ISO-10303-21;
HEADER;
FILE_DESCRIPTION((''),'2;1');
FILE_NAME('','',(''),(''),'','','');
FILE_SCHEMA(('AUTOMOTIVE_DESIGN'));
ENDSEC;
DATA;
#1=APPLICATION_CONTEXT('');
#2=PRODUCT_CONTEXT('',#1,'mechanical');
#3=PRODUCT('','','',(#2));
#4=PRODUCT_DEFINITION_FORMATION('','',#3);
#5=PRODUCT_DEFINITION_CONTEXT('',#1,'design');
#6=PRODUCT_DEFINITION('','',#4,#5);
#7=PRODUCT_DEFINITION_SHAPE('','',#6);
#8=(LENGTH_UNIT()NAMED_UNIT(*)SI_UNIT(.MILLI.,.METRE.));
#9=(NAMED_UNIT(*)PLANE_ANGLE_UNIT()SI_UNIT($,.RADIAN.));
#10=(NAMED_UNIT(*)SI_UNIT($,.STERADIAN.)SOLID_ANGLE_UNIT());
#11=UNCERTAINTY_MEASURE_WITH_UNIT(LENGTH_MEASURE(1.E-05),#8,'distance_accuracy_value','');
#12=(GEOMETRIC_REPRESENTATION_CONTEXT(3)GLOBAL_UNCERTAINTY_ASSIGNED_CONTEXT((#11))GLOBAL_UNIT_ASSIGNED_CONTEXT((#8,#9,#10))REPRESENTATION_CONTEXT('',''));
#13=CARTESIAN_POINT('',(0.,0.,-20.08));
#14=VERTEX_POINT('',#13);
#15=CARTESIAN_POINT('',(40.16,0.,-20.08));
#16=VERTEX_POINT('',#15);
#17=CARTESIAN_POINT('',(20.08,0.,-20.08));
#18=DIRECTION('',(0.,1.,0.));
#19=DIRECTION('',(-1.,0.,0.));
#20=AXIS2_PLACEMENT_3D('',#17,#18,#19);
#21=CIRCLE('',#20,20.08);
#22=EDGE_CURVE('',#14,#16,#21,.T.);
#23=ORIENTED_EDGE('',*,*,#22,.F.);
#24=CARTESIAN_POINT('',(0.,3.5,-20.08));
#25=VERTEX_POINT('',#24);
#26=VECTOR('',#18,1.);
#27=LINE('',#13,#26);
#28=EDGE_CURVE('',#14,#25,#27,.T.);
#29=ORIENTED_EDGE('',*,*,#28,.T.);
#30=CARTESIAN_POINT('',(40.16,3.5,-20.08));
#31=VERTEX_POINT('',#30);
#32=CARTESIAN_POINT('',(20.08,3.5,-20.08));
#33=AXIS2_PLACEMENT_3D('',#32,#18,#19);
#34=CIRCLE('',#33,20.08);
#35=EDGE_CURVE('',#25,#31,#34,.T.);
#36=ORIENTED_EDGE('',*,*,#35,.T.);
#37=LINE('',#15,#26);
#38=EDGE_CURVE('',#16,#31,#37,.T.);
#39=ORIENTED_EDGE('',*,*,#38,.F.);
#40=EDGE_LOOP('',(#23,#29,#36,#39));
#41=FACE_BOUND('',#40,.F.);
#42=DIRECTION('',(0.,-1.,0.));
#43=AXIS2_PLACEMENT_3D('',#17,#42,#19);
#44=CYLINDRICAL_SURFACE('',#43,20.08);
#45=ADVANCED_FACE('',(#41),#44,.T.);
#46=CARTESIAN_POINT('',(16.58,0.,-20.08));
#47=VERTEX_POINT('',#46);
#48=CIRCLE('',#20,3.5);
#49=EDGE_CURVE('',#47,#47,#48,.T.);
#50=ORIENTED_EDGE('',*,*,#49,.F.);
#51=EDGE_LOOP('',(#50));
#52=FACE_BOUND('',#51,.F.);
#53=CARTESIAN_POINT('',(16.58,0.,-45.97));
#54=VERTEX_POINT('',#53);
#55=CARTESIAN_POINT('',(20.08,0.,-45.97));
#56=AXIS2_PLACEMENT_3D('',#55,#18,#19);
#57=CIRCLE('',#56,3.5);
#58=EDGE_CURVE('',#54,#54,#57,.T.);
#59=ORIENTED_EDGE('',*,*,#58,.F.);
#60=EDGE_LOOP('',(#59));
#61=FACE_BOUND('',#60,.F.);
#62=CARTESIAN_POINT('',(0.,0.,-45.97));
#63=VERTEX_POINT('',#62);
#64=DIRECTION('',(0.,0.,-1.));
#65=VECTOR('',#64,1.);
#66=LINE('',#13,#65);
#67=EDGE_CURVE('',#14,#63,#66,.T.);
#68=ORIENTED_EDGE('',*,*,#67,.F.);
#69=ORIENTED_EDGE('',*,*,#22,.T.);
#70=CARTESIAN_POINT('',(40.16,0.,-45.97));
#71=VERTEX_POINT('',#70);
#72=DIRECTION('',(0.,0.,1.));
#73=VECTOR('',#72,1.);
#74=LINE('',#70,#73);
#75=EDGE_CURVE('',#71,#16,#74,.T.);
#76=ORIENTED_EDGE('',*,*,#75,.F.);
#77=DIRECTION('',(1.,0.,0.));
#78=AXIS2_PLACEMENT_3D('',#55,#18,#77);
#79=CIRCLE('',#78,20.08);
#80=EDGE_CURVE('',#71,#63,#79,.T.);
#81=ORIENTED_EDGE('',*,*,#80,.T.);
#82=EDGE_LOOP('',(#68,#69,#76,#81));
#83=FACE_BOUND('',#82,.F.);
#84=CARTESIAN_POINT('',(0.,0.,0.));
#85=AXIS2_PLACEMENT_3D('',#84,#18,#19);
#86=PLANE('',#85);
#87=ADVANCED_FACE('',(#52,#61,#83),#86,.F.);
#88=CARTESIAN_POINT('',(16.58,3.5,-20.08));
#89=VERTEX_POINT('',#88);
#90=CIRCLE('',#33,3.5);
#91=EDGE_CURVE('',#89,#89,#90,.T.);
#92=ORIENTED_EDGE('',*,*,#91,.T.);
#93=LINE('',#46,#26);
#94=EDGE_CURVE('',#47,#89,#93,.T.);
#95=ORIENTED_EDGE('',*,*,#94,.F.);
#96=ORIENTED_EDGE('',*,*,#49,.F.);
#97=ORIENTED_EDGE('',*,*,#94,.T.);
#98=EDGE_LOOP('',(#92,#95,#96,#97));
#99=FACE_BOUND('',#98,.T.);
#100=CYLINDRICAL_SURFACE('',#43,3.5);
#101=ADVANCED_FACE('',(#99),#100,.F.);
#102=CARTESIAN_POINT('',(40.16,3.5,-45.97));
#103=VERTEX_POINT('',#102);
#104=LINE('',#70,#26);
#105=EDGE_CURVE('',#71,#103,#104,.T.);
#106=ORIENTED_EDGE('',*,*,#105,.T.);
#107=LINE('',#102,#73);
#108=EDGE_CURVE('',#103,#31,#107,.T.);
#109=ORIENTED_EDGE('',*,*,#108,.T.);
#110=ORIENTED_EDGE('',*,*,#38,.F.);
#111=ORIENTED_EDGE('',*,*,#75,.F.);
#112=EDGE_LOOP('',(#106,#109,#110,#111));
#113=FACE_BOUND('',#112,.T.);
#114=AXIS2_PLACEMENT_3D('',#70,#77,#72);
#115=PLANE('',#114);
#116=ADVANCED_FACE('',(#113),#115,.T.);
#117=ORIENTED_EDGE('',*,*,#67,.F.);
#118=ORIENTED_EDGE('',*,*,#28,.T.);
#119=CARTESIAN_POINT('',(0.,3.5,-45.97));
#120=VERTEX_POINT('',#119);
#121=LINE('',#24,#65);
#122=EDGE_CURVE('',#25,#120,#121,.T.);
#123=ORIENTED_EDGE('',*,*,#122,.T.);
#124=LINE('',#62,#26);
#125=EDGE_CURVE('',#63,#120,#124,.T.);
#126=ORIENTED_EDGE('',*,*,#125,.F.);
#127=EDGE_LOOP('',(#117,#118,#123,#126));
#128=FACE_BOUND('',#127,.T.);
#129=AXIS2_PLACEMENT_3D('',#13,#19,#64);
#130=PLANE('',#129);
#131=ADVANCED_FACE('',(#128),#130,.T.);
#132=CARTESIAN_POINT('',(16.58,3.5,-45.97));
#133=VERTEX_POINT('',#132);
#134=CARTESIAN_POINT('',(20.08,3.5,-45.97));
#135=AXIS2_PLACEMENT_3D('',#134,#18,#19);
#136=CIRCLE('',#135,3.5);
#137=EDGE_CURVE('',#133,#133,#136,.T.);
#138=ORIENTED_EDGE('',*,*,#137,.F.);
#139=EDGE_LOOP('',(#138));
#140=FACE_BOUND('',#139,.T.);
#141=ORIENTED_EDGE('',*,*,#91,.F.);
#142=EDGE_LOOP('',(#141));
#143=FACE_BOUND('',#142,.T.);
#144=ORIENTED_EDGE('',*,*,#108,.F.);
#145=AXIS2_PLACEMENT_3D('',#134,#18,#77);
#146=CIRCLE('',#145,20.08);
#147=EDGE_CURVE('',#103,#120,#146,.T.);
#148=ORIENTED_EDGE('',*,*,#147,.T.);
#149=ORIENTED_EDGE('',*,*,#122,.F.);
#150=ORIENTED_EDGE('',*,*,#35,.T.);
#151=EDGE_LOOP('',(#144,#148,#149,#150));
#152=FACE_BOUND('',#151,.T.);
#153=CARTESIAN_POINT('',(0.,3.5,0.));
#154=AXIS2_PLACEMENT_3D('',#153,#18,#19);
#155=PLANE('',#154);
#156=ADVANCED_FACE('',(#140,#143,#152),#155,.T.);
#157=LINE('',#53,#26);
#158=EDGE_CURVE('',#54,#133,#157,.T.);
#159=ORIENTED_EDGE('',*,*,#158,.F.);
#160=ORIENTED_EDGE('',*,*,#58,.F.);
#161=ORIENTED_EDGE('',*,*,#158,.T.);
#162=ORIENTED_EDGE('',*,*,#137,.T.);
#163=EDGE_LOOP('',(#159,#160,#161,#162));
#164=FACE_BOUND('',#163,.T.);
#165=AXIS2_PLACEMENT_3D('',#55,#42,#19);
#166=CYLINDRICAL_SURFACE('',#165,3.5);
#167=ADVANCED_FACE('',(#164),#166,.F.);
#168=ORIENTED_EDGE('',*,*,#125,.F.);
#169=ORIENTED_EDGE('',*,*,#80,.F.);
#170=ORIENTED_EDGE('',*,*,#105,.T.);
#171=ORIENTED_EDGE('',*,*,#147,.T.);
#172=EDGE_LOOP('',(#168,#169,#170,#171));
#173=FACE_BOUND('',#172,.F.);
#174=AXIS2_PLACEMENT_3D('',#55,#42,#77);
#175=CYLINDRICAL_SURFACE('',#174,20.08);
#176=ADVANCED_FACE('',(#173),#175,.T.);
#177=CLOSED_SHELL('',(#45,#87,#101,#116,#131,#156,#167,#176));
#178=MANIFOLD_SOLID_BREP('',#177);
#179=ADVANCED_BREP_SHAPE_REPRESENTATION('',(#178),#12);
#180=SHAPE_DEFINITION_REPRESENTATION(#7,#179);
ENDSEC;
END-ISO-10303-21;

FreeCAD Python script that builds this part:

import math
import FreeCAD as App
import Part
import Sketcher

doc = App.newDocument("Part")
body = doc.addObject("PartDesign::Body", "Body")

# Sketch on XZ plane
sketch1 = body.newObject("Sketcher::SketchObject", "Sketch")
sketch1.AttachmentSupport = (doc.getObject("XZ_Plane"), [""])
sketch1.MapMode = "FlatFace"
sketch1.addGeometry(Part.LineSegment(App.Vector(0, -46, 0), App.Vector(0, -20.1, 0)), False)
sketch1.addGeometry(Part.ArcOfCircle(Part.Circle(App.Vector(20.1, -20.1, 0), App.Vector(0, 0, 1), 20.1), math.radians(0), math.radians(180)), False)
sketch1.addGeometry(Part.LineSegment(App.Vector(40.2, -20.1, 0), App.Vector(40.2, -46, 0)), False)
sketch1.addGeometry(Part.ArcOfCircle(Part.Circle(App.Vector(20.1, -46, 0), App.Vector(0, 0, 1), 20.1), math.radians(180), math.radians(360)), False)
sketch1.addGeometry(Part.Circle(App.Vector(20.1, -46, 0), App.Vector(0, 0, 1), 3.5), False)
sketch1.addGeometry(Part.Circle(App.Vector(20.1, -20.1, 0), App.Vector(0, 0, 1), 3.5), False)
sketch1.addConstraint(Sketcher.Constraint("Tangent", 0, 2, 1, 2))
sketch1.addConstraint(Sketcher.Constraint("Tangent", 1, 1, 2, 1))
sketch1.addConstraint(Sketcher.Constraint("Tangent", 2, 2, 3, 2))
sketch1.addConstraint(Sketcher.Constraint("Tangent", 3, 1, 0, 1))
sketch1.addConstraint(Sketcher.Constraint("Vertical", 0))
sketch1.addConstraint(Sketcher.Constraint("Vertical", 2))
sketch1.addConstraint(Sketcher.Constraint("Coincident", 4, 3, 3, 3))
sketch1.addConstraint(Sketcher.Constraint("Coincident", 5, 3, 1, 3))
sketch1.addConstraint(Sketcher.Constraint("Equal", 4, 5))
sketch1.addConstraint(Sketcher.Constraint("PointOnObject", 0, 2, -2))
sketch1.addConstraint(Sketcher.Constraint("Diameter", 4, 7.0))
sketch1.addConstraint(Sketcher.Constraint("Radius", 1, 20.08))
sketch1.addConstraint(Sketcher.Constraint("DistanceY", 0, 1, 0, 2, 25.89))
sketch1.addConstraint(Sketcher.Constraint("DistanceY", 1, 3, -1, 1, 20.08))
pad1 = body.newObject("PartDesign::Pad", "Pad")
pad1.Profile = sketch1
pad1.Length = 3.5
pad1.Reversed = True

doc.recompute()
